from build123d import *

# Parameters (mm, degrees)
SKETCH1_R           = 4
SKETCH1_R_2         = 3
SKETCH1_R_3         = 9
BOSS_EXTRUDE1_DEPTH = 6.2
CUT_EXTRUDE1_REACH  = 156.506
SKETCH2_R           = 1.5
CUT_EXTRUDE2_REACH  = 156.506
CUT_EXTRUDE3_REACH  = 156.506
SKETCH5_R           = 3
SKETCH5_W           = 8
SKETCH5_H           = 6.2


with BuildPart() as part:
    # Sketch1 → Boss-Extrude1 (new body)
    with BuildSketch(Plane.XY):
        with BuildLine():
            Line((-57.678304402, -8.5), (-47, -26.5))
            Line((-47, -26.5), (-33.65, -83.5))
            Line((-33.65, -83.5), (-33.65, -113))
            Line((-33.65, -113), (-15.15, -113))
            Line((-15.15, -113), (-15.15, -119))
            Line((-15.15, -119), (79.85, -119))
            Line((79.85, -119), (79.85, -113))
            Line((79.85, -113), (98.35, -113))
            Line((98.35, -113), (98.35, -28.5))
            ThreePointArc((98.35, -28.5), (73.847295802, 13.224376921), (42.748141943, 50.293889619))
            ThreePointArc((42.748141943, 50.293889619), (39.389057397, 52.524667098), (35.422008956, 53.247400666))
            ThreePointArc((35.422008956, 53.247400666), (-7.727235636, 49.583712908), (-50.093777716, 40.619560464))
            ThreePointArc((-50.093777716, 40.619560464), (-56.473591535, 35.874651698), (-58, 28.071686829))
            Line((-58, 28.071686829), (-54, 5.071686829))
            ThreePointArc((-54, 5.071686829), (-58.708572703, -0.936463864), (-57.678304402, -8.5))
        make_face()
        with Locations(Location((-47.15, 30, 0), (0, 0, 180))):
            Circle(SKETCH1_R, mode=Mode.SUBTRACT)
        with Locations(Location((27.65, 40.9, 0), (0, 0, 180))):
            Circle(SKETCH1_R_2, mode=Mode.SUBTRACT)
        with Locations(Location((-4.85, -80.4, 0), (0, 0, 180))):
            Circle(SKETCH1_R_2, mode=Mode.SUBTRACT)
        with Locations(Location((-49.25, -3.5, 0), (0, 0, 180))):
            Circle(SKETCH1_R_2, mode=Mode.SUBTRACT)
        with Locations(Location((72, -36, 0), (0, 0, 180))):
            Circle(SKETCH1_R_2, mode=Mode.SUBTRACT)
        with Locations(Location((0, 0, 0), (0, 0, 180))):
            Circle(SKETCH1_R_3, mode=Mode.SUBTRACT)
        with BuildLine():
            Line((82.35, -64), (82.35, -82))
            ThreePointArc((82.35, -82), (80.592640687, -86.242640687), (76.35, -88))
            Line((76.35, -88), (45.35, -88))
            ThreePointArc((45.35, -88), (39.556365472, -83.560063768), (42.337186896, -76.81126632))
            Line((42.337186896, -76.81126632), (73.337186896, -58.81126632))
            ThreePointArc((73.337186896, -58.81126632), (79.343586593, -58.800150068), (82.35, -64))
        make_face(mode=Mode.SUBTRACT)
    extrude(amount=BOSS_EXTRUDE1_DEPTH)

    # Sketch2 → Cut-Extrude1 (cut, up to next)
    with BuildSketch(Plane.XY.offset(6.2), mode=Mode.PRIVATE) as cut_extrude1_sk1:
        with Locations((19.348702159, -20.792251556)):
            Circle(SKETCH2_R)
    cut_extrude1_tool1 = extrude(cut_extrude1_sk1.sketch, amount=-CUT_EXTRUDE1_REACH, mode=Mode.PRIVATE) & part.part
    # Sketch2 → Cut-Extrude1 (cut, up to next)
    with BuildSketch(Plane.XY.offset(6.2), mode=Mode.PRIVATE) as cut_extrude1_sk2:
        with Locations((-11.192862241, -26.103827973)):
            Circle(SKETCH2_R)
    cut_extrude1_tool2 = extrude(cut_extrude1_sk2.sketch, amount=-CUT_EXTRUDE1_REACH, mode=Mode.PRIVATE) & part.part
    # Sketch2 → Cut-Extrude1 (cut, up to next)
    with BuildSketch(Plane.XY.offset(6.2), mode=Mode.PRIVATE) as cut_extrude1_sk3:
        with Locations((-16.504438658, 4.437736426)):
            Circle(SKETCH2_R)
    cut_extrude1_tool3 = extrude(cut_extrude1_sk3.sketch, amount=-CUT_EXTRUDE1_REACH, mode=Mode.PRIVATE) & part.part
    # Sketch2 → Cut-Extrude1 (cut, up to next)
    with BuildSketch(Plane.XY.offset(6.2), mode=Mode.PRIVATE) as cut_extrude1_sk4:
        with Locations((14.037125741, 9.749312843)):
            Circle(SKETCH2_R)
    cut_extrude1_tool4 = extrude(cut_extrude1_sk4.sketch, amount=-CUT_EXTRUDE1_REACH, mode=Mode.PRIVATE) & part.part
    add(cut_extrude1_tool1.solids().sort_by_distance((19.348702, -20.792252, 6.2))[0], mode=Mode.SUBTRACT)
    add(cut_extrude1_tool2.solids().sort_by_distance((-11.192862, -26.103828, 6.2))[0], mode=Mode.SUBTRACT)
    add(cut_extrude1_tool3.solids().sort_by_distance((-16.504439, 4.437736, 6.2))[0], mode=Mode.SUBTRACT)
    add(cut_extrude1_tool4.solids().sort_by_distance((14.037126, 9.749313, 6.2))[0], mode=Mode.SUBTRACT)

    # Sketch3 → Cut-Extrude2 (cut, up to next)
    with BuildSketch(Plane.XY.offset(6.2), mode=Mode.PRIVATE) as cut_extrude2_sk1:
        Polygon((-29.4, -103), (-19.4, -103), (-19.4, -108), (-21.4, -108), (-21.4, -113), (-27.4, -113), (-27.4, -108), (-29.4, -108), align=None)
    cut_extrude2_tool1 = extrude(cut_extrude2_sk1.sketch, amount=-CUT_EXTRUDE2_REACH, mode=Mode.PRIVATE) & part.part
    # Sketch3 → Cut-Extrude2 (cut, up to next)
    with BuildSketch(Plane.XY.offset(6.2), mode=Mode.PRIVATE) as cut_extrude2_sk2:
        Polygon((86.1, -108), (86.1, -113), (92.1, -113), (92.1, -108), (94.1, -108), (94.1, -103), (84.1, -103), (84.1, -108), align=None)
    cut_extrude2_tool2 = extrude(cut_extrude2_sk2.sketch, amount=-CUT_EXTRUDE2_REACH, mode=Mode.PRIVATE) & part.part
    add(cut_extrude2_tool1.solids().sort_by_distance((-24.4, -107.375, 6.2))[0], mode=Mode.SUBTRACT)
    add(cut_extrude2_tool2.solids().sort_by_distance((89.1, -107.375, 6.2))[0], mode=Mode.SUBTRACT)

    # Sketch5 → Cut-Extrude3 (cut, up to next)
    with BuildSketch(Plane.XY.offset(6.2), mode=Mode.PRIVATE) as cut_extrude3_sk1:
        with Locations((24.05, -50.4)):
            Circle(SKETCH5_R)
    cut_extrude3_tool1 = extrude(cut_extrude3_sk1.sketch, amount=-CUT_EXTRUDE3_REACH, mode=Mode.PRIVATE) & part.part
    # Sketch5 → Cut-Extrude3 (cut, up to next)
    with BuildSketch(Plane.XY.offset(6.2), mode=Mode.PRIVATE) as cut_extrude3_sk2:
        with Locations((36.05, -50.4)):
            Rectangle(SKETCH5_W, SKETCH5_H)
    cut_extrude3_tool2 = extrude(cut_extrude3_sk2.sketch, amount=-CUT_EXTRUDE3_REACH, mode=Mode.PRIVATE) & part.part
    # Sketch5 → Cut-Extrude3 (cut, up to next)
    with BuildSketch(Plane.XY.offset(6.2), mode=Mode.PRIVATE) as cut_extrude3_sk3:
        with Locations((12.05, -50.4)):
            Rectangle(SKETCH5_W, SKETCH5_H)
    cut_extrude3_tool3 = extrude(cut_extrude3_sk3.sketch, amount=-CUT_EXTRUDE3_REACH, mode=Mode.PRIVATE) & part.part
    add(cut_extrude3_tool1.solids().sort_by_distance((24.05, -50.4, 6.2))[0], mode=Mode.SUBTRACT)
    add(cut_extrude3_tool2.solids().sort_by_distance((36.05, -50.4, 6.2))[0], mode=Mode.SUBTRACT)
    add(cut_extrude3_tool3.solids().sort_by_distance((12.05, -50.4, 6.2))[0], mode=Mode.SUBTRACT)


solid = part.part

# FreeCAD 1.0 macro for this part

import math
import FreeCAD as App
import Part
import Sketcher

V = App.Vector


def add_polygon(sketch, points):
    """Adds a closed chain of lines whose ends are joined by coincident constraints."""
    first, n = sketch.GeometryCount, len(points)
    for a, b in zip(points, points[1:] + points[:1]):
        sketch.addGeometry(Part.LineSegment(App.Vector(*a, 0), App.Vector(*b, 0)), False)
    for i in range(n):
        sketch.addConstraint(Sketcher.Constraint("Coincident", first + i, 2, first + (i + 1) % n, 1))

doc = App.newDocument("Part")
body = doc.addObject("PartDesign::Body", "Body")

# Sketch on XY plane
sketch1 = body.newObject("Sketcher::SketchObject", "Sketch")
sketch1.AttachmentSupport = (doc.getObject("XY_Plane"), [""])
sketch1.MapMode = "FlatFace"
sketch1.addGeometry(Part.LineSegment(V(-57.7, -8.5, 0), V(-47, -26.5, 0)), False)
sketch1.addGeometry(Part.LineSegment(V(-47, -26.5, 0), V(-33.6, -83.5, 0)), False)
sketch1.addGeometry(Part.LineSegment(V(-33.6, -83.5, 0), V(-33.6, -113, 0)), False)
sketch1.addGeometry(Part.LineSegment(V(-33.6, -113, 0), V(-15.2, -113, 0)), False)
sketch1.addGeometry(Part.LineSegment(V(-15.2, -113, 0), V(-15.2, -119, 0)), False)
sketch1.addGeometry(Part.LineSegment(V(-15.2, -119, 0), V(79.8, -119, 0)), False)
sketch1.addGeometry(Part.LineSegment(V(79.8, -119, 0), V(79.8, -113, 0)), False)
sketch1.addGeometry(Part.LineSegment(V(79.8, -113, 0), V(98.3, -113, 0)), False)
sketch1.addGeometry(Part.LineSegment(V(98.3, -113, 0), V(98.3, -28.5, 0)), False)
sketch1.addGeometry(Part.ArcOfCircle(Part.Circle(V(-163.1, -154, 0), V(0, 0, 1), 290), math.radians(25.64), math.radians(44.78)), False)
sketch1.addGeometry(Part.ArcOfCircle(Part.Circle(V(35.6, 43.2, 0), V(0, 0, 1), 10), math.radians(45), math.radians(91)), False)
sketch1.addGeometry(Part.ArcOfCircle(Part.Circle(V(43.4, -296.7, 0), V(0, 0, 1), 350), math.radians(91.31), math.radians(105.49)), False)
sketch1.addGeometry(Part.ArcOfCircle(Part.Circle(V(-47.1, 30, 0), V(0, 0, 1), 11), math.radians(105), math.radians(190)), False)
sketch1.addGeometry(Part.LineSegment(V(-58, 28.1, 0), V(-54, 5.1, 0)), False)
sketch1.addGeometry(Part.ArcOfCircle(Part.Circle(V(-49.3, -3.5, 0), V(0, 0, 1), 9.8), math.radians(119), math.radians(211)), False)
sketch1.addGeometry(Part.Circle(V(-4.8, -80.4, 0), V(0, 0, 1), 3), False)
sketch1.addGeometry(Part.ArcOfCircle(Part.Circle(V(76.3, -64, 0), V(0, 0, 1), 6), math.radians(0), math.radians(120)), False)
sketch1.addGeometry(Part.LineSegment(V(82.3, -64, 0), V(82.3, -82, 0)), False)
sketch1.addGeometry(Part.ArcOfCircle(Part.Circle(V(76.3, -82, 0), V(0, 0, 1), 6), math.radians(-90), math.radians(0)), False)
sketch1.addGeometry(Part.LineSegment(V(76.3, -88, 0), V(45.4, -88, 0)), False)
sketch1.addGeometry(Part.ArcOfCircle(Part.Circle(V(45.4, -82, 0), V(0, 0, 1), 6), math.radians(120), math.radians(270)), False)
sketch1.addGeometry(Part.LineSegment(V(42.3, -76.8, 0), V(73.3, -58.8, 0)), False)
sketch1.addGeometry(Part.Circle(V(72, -36, 0), V(0, 0, 1), 3), False)
sketch1.addGeometry(Part.Circle(V(-49.2, -3.5, 0), V(0, 0, 1), 3), False)
sketch1.addGeometry(Part.Circle(V(0, 0, 0), V(0, 0, 1), 9), False)
sketch1.addGeometry(Part.Circle(V(-47.1, 30, 0), V(0, 0, 1), 4), False)
sketch1.addGeometry(Part.Circle(V(27.6, 40.9, 0), V(0, 0, 1), 3), False)
sketch1.addConstraint(Sketcher.Constraint("Coincident", 0, 2, 1, 1))
sketch1.addConstraint(Sketcher.Constraint("Coincident", 1, 2, 2, 1))
sketch1.addConstraint(Sketcher.Constraint("Coincident", 2, 2, 3, 1))
sketch1.addConstraint(Sketcher.Constraint("Coincident", 3, 2, 4, 1))
sketch1.addConstraint(Sketcher.Constraint("Coincident", 4, 2, 5, 1))
sketch1.addConstraint(Sketcher.Constraint("Coincident", 5, 2, 6, 1))
sketch1.addConstraint(Sketcher.Constraint("Coincident", 6, 2, 7, 1))
sketch1.addConstraint(Sketcher.Constraint("Coincident", 7, 2, 8, 1))
sketch1.addConstraint(Sketcher.Constraint("Coincident", 8, 2, 9, 1))
sketch1.addConstraint(Sketcher.Constraint("Tangent", 9, 2, 10, 1))
sketch1.addConstraint(Sketcher.Constraint("Tangent", 10, 2, 11, 1))
sketch1.addConstraint(Sketcher.Constraint("Tangent", 11, 2, 12, 1))
sketch1.addConstraint(Sketcher.Constraint("Coincident", 12, 2, 13, 1))
sketch1.addConstraint(Sketcher.Constraint("Coincident", 13, 2, 14, 1))
sketch1.addConstraint(Sketcher.Constraint("Tangent", 14, 2, 0, 1))
sketch1.addConstraint(Sketcher.Constraint("Tangent", 16, 1, 17, 1))
sketch1.addConstraint(Sketcher.Constraint("Tangent", 17, 2, 18, 2))
sketch1.addConstraint(Sketcher.Constraint("Tangent", 18, 1, 19, 1))
sketch1.addConstraint(Sketcher.Constraint("Tangent", 19, 2, 20, 2))
sketch1.addConstraint(Sketcher.Constraint("Tangent", 20, 1, 21, 1))
sketch1.addConstraint(Sketcher.Constraint("Tangent", 21, 2, 16, 2))
sketch1.addConstraint(Sketcher.Constraint("Vertical", 2))
sketch1.addConstraint(Sketcher.Constraint("Horizontal", 3))
sketch1.addConstraint(Sketcher.Constraint("Vertical", 4))
sketch1.addConstraint(Sketcher.Constraint("Horizontal", 5))
sketch1.addConstraint(Sketcher.Constraint("Vertical", 6))
sketch1.addConstraint(Sketcher.Constraint("Horizontal", 7))
sketch1.addConstraint(Sketcher.Constraint("Vertical", 8))
sketch1.addConstraint(Sketcher.Constraint("Vertical", 17))
sketch1.addConstraint(Sketcher.Constraint("Horizontal", 19))
sketch1.addConstraint(Sketcher.Constraint("Coincident", 24, 3, -1, 1))
sketch1.addConstraint(Sketcher.Constraint("Coincident", 23, 3, 14, 3))
sketch1.addConstraint(Sketcher.Constraint("Coincident", 25, 3, 12, 3))
sketch1.addConstraint(Sketcher.Constraint("Equal", 16, 18))
sketch1.addConstraint(Sketcher.Constraint("Equal", 18, 20))
sketch1.addConstraint(Sketcher.Constraint("Equal", 15, 22))
sketch1.addConstraint(Sketcher.Constraint("Equal", 22, 23))
sketch1.addConstraint(Sketcher.Constraint("Equal", 23, 26))
sketch1.addConstraint(Sketcher.Constraint("Horizontal", 3, 2, 6, 2))
sketch1.addConstraint(Sketcher.Constraint("Equal", 3, 7))
sketch1.addConstraint(Sketcher.Constraint("Diameter", 15, 6.0))
sketch1.addConstraint(Sketcher.Constraint("Diameter", 24, 18.0))
sketch1.addConstraint(Sketcher.Constraint("Diameter", 25, 8.0))
sketch1.addConstraint(Sketcher.Constraint("Radius", 9, 290.0))
sketch1.addConstraint(Sketcher.Constraint("Radius", 10, 10.0))
sketch1.addConstraint(Sketcher.Constraint("Radius", 11, 350.0))
sketch1.addConstraint(Sketcher.Constraint("Radius", 16, 6.0))
sketch1.addConstraint(Sketcher.Constraint("DistanceX", 5, 1, 5, 2, 95.0))
sketch1.addConstraint(Sketcher.Constraint("DistanceX", 19, 2, 19, 1, 31.0))
sketch1.addConstraint(Sketcher.Constraint("DistanceY", 4, 2, 4, 1, 6.0))
sketch1.addConstraint(Sketcher.Constraint("DistanceY", 17, 2, 17, 1, 18.0))
sketch1.addConstraint(Sketcher.Constraint("DistanceX", 3, 1, 3, 2, 18.5))
sketch1.addConstraint(Sketcher.Constraint("DistanceY", 2, 2, 2, 1, 29.5))
sketch1.addConstraint(Sketcher.Constraint("DistanceY", 8, 1, 8, 2, 84.5))
sketch1.addConstraint(Sketcher.Constraint("DistanceY", -1, 1, 12, 3, 30.0))
sketch1.addConstraint(Sketcher.Constraint("DistanceY", 16, 3, -1, 1, 64.0))
sketch1.addConstraint(Sketcher.Constraint("DistanceX", -1, 1, 22, 3, 72.0))
sketch1.addConstraint(Sketcher.Constraint("DistanceY", 22, 3, -1, 1, 36.0))
sketch1.addConstraint(Sketcher.Constraint("DistanceX", 0, 2, -1, 1, 47.0))
sketch1.addConstraint(Sketcher.Constraint("DistanceY", 2, 2, -1, 1, 113.0))
sketch1.addConstraint(Sketcher.Constraint("DistanceX", 12, 2, -1, 1, 58.0))
sketch1.addConstraint(Sketcher.Constraint("DistanceX", 13, 2, -1, 1, 54.0))
sketch1.addConstraint(Sketcher.Constraint("DistanceX", 26, 3, 10, 3, 8.0))
sketch1.addConstraint(Sketcher.Constraint("DistanceY", 0, 2, 23, 3, 23.0))
sketch1.addConstraint(Sketcher.Constraint("DistanceY", 1, 2, 0, 2, 57.0))
sketch1.addConstraint(Sketcher.Constraint("DistanceX", 1, 2, 20, 3, 79.0))
sketch1.addConstraint(Sketcher.Constraint("DistanceY", 13, 2, 12, 2, 23.0))
sketch1.addConstraint(Sketcher.Constraint("DistanceY", 14, 2, 14, 3, 5.0))
sketch1.addConstraint(Sketcher.Constraint("DistanceY", 15, 3, -1, 1, 80.4))
sketch1.addConstraint(Sketcher.Constraint("DistanceY", -1, 1, 26, 3, 40.9))
sketch1.addConstraint(Sketcher.Constraint("DistanceX", 12, 3, 10, 3, 82.8))
sketch1.addConstraint(Sketcher.Constraint("DistanceX", 14, 3, 12, 3, 2.1))
sketch1.addConstraint(Sketcher.Constraint("DistanceX", 14, 3, 15, 3, 44.4))
sketch1.addConstraint(Sketcher.Constraint("DistanceX", 15, 3, 16, 3, 81.2))
sketch1.addConstraint(Sketcher.Constraint("DistanceX", -1, 1, 10, 3, 35.65))
sketch1.addConstraint(Sketcher.Constraint("DistanceY", -1, 1, 10, 3, 43.25))
pad1 = body.newObject("PartDesign::Pad", "Pad")
pad1.Profile = sketch1
pad1.Length = 6.2

# Sketch on XY plane
sketch2 = body.newObject("Sketcher::SketchObject", "Sketch001")
sketch2.AttachmentSupport = (doc.getObject("XY_Plane"), [""])
sketch2.MapMode = "FlatFace"
sketch2.AttachmentOffset = App.Placement(V(0, 0, 6.2), App.Rotation())
sketch2.addGeometry(Part.Circle(V(19.3, -20.8, 0), V(0, 0, 1), 1.5), False)
sketch2.addConstraint(Sketcher.Constraint("Diameter", 0, 3.0))
sketch2.addConstraint(Sketcher.Constraint("DistanceY", 0, 3, -1, 1, 20.792252))
sketch2.addConstraint(Sketcher.Constraint("DistanceX", -1, 1, 0, 3, 19.348702))
pocket1 = body.newObject("PartDesign::Pocket", "Pocket")
pocket1.Profile = sketch2
pocket1.Type = "UpToFirst"

# Sketch on XY plane
sketch3 = body.newObject("Sketcher::SketchObject", "Sketch002")
sketch3.AttachmentSupport = (doc.getObject("XY_Plane"), [""])
sketch3.MapMode = "FlatFace"
sketch3.AttachmentOffset = App.Placement(V(0, 0, 6.2), App.Rotation())
sketch3.addGeometry(Part.Circle(V(-11.2, -26.1, 0), V(0, 0, 1), 1.5), False)
sketch3.addConstraint(Sketcher.Constraint("Diameter", 0, 3.0))
sketch3.addConstraint(Sketcher.Constraint("DistanceX", 0, 3, -1, 1, 11.192862))
sketch3.addConstraint(Sketcher.Constraint("DistanceY", 0, 3, -1, 1, 26.103828))
pocket2 = body.newObject("PartDesign::Pocket", "Pocket001")
pocket2.Profile = sketch3
pocket2.Type = "UpToFirst"

# Sketch on XY plane
sketch4 = body.newObject("Sketcher::SketchObject", "Sketch003")
sketch4.AttachmentSupport = (doc.getObject("XY_Plane"), [""])
sketch4.MapMode = "FlatFace"
sketch4.AttachmentOffset = App.Placement(V(0, 0, 6.2), App.Rotation())
sketch4.addGeometry(Part.Circle(V(-16.5, 4.4, 0), V(0, 0, 1), 1.5), False)
sketch4.addConstraint(Sketcher.Constraint("Diameter", 0, 3.0))
sketch4.addConstraint(Sketcher.Constraint("DistanceX", 0, 3, -1, 1, 16.504439))
sketch4.addConstraint(Sketcher.Constraint("DistanceY", -1, 1, 0, 3, 4.437736))
pocket3 = body.newObject("PartDesign::Pocket", "Pocket002")
pocket3.Profile = sketch4
pocket3.Type = "UpToFirst"

# Sketch on XY plane
sketch5 = body.newObject("Sketcher::SketchObject", "Sketch004")
sketch5.AttachmentSupport = (doc.getObject("XY_Plane"), [""])
sketch5.MapMode = "FlatFace"
sketch5.AttachmentOffset = App.Placement(V(0, 0, 6.2), App.Rotation())
sketch5.addGeometry(Part.Circle(V(14, 9.7, 0), V(0, 0, 1), 1.5), False)
sketch5.addConstraint(Sketcher.Constraint("Diameter", 0, 3.0))
sketch5.addConstraint(Sketcher.Constraint("DistanceX", -1, 1, 0, 3, 14.037126))
sketch5.addConstraint(Sketcher.Constraint("DistanceY", -1, 1, 0, 3, 9.749313))
pocket4 = body.newObject("PartDesign::Pocket", "Pocket003")
pocket4.Profile = sketch5
pocket4.Type = "UpToFirst"

# Sketch on XY plane
sketch6 = body.newObject("Sketcher::SketchObject", "Sketch005")
sketch6.AttachmentSupport = (doc.getObject("XY_Plane"), [""])
sketch6.MapMode = "FlatFace"
sketch6.AttachmentOffset = App.Placement(V(0, 0, 6.2), App.Rotation())
add_polygon(sketch6, [(-19.4, -103), (-29.4, -103), (-29.4, -108), (-27.4, -108), (-27.4, -113), (-21.4, -113), (-21.4, -108), (-19.4, -108)])  # lines 0-7
sketch6.addConstraint(Sketcher.Constraint("Horizontal", 0))
sketch6.addConstraint(Sketcher.Constraint("Vertical", 1))
sketch6.addConstraint(Sketcher.Constraint("Horizontal", 2))
sketch6.addConstraint(Sketcher.Constraint("Vertical", 3))
sketch6.addConstraint(Sketcher.Constraint("Horizontal", 4))
sketch6.addConstraint(Sketcher.Constraint("Vertical", 5))
sketch6.addConstraint(Sketcher.Constraint("Horizontal", 6))
sketch6.addConstraint(Sketcher.Constraint("Vertical", 7))
sketch6.addConstraint(Sketcher.Constraint("Horizontal", 2, 2, 5, 2))
sketch6.addConstraint(Sketcher.Constraint("Equal", 2, 6))
sketch6.addConstraint(Sketcher.Constraint("Equal", 1, 3))
sketch6.addConstraint(Sketcher.Constraint("DistanceX", 0, 2, 0, 1, 10.0))
sketch6.addConstraint(Sketcher.Constraint("DistanceX", 2, 1, 2, 2, 2.0))
sketch6.addConstraint(Sketcher.Constraint("DistanceY", 1, 2, 1, 1, 5.0))
sketch6.addConstraint(Sketcher.Constraint("DistanceY", 0, 2, -1, 1, 103.0))
sketch6.addConstraint(Sketcher.Constraint("DistanceX", 0, 2, -1, 1, 29.4))
pocket5 = body.newObject("PartDesign::Pocket", "Pocket004")
pocket5.Profile = sketch6
pocket5.Type = "UpToFirst"

# Sketch on XY plane
sketch7 = body.newObject("Sketcher::SketchObject", "Sketch006")
sketch7.AttachmentSupport = (doc.getObject("XY_Plane"), [""])
sketch7.MapMode = "FlatFace"
sketch7.AttachmentOffset = App.Placement(V(0, 0, 6.2), App.Rotation())
add_polygon(sketch7, [(86.1, -108), (86.1, -113), (92.1, -113), (92.1, -108), (94.1, -108), (94.1, -103), (84.1, -103), (84.1, -108)])  # lines 0-7
sketch7.addConstraint(Sketcher.Constraint("Vertical", 0))
sketch7.addConstraint(Sketcher.Constraint("Horizontal", 1))
sketch7.addConstraint(Sketcher.Constraint("Vertical", 2))
sketch7.addConstraint(Sketcher.Constraint("Horizontal", 3))
sketch7.addConstraint(Sketcher.Constraint("Vertical", 4))
sketch7.addConstraint(Sketcher.Constraint("Horizontal", 5))
sketch7.addConstraint(Sketcher.Constraint("Vertical", 6))
sketch7.addConstraint(Sketcher.Constraint("Horizontal", 7))
sketch7.addConstraint(Sketcher.Constraint("Horizontal", 3, 2, 6, 2))
sketch7.addConstraint(Sketcher.Constraint("Equal", 3, 7))
sketch7.addConstraint(Sketcher.Constraint("Equal", 2, 4))
sketch7.addConstraint(Sketcher.Constraint("DistanceX", 1, 1, 1, 2, 6.0))
sketch7.addConstraint(Sketcher.Constraint("DistanceX", 3, 1, 3, 2, 2.0))
sketch7.addConstraint(Sketcher.Constraint("DistanceY", 0, 2, 0, 1, 5.0))
sketch7.addConstraint(Sketcher.Constraint("DistanceY", 0, 2, -1, 1, 113.0))
sketch7.addConstraint(Sketcher.Constraint("DistanceX", -1, 1, 0, 2, 86.1))
pocket6 = body.newObject("PartDesign::Pocket", "Pocket005")
pocket6.Profile = sketch7
pocket6.Type = "UpToFirst"

# Sketch on XY plane
sketch8 = body.newObject("Sketcher::SketchObject", "Sketch007")
sketch8.AttachmentSupport = (doc.getObject("XY_Plane"), [""])
sketch8.MapMode = "FlatFace"
sketch8.AttachmentOffset = App.Placement(V(0, 0, 6.2), App.Rotation())
sketch8.addGeometry(Part.Circle(V(24.1, -50.4, 0), V(0, 0, 1), 3), False)
sketch8.addConstraint(Sketcher.Constraint("Diameter", 0, 6.0))
sketch8.addConstraint(Sketcher.Constraint("DistanceY", 0, 3, -1, 1, 50.4))
sketch8.addConstraint(Sketcher.Constraint("DistanceX", -1, 1, 0, 3, 24.05))
pocket7 = body.newObject("PartDesign::Pocket", "Pocket006")
pocket7.Profile = sketch8
pocket7.Type = "UpToFirst"

# Sketch on XY plane
sketch9 = body.newObject("Sketcher::SketchObject", "Sketch008")
sketch9.AttachmentSupport = (doc.getObject("XY_Plane"), [""])
sketch9.MapMode = "FlatFace"
sketch9.AttachmentOffset = App.Placement(V(0, 0, 6.2), App.Rotation())
add_polygon(sketch9, [(32, -47), (32, -54), (40, -54), (40, -47)])  # lines 0-3
sketch9.addConstraint(Sketcher.Constraint("Vertical", 0))
sketch9.addConstraint(Sketcher.Constraint("Horizontal", 1))
sketch9.addConstraint(Sketcher.Constraint("Vertical", 2))
sketch9.addConstraint(Sketcher.Constraint("Horizontal", 3))
sketch9.addConstraint(Sketcher.Constraint("DistanceX", 1, 1, 1, 2, 8.0))
sketch9.addConstraint(Sketcher.Constraint("DistanceY", 0, 2, 0, 1, 6.2))
sketch9.addConstraint(Sketcher.Constraint("DistanceY", 0, 2, -1, 1, 53.5))
sketch9.addConstraint(Sketcher.Constraint("DistanceX", -1, 1, 0, 2, 32.05))
pocket8 = body.newObject("PartDesign::Pocket", "Pocket007")
pocket8.Profile = sketch9
pocket8.Type = "UpToFirst"

# Sketch on XY plane
sketch10 = body.newObject("Sketcher::SketchObject", "Sketch009")
sketch10.AttachmentSupport = (doc.getObject("XY_Plane"), [""])
sketch10.MapMode = "FlatFace"
sketch10.AttachmentOffset = App.Placement(V(0, 0, 6.2), App.Rotation())
add_polygon(sketch10, [(8, -47), (8, -54), (16, -54), (16, -47)])  # lines 0-3
sketch10.addConstraint(Sketcher.Constraint("Vertical", 0))
sketch10.addConstraint(Sketcher.Constraint("Horizontal", 1))
sketch10.addConstraint(Sketcher.Constraint("Vertical", 2))
sketch10.addConstraint(Sketcher.Constraint("Horizontal", 3))
sketch10.addConstraint(Sketcher.Constraint("DistanceX", 1, 1, 1, 2, 8.0))
sketch10.addConstraint(Sketcher.Constraint("DistanceY", 0, 2, 0, 1, 6.2))
sketch10.addConstraint(Sketcher.Constraint("DistanceY", 0, 2, -1, 1, 53.5))
sketch10.addConstraint(Sketcher.Constraint("DistanceX", -1, 1, 0, 2, 8.05))
pocket9 = body.newObject("PartDesign::Pocket", "Pocket008")
pocket9.Profile = sketch10
pocket9.Type = "UpToFirst"

doc.recompute()
